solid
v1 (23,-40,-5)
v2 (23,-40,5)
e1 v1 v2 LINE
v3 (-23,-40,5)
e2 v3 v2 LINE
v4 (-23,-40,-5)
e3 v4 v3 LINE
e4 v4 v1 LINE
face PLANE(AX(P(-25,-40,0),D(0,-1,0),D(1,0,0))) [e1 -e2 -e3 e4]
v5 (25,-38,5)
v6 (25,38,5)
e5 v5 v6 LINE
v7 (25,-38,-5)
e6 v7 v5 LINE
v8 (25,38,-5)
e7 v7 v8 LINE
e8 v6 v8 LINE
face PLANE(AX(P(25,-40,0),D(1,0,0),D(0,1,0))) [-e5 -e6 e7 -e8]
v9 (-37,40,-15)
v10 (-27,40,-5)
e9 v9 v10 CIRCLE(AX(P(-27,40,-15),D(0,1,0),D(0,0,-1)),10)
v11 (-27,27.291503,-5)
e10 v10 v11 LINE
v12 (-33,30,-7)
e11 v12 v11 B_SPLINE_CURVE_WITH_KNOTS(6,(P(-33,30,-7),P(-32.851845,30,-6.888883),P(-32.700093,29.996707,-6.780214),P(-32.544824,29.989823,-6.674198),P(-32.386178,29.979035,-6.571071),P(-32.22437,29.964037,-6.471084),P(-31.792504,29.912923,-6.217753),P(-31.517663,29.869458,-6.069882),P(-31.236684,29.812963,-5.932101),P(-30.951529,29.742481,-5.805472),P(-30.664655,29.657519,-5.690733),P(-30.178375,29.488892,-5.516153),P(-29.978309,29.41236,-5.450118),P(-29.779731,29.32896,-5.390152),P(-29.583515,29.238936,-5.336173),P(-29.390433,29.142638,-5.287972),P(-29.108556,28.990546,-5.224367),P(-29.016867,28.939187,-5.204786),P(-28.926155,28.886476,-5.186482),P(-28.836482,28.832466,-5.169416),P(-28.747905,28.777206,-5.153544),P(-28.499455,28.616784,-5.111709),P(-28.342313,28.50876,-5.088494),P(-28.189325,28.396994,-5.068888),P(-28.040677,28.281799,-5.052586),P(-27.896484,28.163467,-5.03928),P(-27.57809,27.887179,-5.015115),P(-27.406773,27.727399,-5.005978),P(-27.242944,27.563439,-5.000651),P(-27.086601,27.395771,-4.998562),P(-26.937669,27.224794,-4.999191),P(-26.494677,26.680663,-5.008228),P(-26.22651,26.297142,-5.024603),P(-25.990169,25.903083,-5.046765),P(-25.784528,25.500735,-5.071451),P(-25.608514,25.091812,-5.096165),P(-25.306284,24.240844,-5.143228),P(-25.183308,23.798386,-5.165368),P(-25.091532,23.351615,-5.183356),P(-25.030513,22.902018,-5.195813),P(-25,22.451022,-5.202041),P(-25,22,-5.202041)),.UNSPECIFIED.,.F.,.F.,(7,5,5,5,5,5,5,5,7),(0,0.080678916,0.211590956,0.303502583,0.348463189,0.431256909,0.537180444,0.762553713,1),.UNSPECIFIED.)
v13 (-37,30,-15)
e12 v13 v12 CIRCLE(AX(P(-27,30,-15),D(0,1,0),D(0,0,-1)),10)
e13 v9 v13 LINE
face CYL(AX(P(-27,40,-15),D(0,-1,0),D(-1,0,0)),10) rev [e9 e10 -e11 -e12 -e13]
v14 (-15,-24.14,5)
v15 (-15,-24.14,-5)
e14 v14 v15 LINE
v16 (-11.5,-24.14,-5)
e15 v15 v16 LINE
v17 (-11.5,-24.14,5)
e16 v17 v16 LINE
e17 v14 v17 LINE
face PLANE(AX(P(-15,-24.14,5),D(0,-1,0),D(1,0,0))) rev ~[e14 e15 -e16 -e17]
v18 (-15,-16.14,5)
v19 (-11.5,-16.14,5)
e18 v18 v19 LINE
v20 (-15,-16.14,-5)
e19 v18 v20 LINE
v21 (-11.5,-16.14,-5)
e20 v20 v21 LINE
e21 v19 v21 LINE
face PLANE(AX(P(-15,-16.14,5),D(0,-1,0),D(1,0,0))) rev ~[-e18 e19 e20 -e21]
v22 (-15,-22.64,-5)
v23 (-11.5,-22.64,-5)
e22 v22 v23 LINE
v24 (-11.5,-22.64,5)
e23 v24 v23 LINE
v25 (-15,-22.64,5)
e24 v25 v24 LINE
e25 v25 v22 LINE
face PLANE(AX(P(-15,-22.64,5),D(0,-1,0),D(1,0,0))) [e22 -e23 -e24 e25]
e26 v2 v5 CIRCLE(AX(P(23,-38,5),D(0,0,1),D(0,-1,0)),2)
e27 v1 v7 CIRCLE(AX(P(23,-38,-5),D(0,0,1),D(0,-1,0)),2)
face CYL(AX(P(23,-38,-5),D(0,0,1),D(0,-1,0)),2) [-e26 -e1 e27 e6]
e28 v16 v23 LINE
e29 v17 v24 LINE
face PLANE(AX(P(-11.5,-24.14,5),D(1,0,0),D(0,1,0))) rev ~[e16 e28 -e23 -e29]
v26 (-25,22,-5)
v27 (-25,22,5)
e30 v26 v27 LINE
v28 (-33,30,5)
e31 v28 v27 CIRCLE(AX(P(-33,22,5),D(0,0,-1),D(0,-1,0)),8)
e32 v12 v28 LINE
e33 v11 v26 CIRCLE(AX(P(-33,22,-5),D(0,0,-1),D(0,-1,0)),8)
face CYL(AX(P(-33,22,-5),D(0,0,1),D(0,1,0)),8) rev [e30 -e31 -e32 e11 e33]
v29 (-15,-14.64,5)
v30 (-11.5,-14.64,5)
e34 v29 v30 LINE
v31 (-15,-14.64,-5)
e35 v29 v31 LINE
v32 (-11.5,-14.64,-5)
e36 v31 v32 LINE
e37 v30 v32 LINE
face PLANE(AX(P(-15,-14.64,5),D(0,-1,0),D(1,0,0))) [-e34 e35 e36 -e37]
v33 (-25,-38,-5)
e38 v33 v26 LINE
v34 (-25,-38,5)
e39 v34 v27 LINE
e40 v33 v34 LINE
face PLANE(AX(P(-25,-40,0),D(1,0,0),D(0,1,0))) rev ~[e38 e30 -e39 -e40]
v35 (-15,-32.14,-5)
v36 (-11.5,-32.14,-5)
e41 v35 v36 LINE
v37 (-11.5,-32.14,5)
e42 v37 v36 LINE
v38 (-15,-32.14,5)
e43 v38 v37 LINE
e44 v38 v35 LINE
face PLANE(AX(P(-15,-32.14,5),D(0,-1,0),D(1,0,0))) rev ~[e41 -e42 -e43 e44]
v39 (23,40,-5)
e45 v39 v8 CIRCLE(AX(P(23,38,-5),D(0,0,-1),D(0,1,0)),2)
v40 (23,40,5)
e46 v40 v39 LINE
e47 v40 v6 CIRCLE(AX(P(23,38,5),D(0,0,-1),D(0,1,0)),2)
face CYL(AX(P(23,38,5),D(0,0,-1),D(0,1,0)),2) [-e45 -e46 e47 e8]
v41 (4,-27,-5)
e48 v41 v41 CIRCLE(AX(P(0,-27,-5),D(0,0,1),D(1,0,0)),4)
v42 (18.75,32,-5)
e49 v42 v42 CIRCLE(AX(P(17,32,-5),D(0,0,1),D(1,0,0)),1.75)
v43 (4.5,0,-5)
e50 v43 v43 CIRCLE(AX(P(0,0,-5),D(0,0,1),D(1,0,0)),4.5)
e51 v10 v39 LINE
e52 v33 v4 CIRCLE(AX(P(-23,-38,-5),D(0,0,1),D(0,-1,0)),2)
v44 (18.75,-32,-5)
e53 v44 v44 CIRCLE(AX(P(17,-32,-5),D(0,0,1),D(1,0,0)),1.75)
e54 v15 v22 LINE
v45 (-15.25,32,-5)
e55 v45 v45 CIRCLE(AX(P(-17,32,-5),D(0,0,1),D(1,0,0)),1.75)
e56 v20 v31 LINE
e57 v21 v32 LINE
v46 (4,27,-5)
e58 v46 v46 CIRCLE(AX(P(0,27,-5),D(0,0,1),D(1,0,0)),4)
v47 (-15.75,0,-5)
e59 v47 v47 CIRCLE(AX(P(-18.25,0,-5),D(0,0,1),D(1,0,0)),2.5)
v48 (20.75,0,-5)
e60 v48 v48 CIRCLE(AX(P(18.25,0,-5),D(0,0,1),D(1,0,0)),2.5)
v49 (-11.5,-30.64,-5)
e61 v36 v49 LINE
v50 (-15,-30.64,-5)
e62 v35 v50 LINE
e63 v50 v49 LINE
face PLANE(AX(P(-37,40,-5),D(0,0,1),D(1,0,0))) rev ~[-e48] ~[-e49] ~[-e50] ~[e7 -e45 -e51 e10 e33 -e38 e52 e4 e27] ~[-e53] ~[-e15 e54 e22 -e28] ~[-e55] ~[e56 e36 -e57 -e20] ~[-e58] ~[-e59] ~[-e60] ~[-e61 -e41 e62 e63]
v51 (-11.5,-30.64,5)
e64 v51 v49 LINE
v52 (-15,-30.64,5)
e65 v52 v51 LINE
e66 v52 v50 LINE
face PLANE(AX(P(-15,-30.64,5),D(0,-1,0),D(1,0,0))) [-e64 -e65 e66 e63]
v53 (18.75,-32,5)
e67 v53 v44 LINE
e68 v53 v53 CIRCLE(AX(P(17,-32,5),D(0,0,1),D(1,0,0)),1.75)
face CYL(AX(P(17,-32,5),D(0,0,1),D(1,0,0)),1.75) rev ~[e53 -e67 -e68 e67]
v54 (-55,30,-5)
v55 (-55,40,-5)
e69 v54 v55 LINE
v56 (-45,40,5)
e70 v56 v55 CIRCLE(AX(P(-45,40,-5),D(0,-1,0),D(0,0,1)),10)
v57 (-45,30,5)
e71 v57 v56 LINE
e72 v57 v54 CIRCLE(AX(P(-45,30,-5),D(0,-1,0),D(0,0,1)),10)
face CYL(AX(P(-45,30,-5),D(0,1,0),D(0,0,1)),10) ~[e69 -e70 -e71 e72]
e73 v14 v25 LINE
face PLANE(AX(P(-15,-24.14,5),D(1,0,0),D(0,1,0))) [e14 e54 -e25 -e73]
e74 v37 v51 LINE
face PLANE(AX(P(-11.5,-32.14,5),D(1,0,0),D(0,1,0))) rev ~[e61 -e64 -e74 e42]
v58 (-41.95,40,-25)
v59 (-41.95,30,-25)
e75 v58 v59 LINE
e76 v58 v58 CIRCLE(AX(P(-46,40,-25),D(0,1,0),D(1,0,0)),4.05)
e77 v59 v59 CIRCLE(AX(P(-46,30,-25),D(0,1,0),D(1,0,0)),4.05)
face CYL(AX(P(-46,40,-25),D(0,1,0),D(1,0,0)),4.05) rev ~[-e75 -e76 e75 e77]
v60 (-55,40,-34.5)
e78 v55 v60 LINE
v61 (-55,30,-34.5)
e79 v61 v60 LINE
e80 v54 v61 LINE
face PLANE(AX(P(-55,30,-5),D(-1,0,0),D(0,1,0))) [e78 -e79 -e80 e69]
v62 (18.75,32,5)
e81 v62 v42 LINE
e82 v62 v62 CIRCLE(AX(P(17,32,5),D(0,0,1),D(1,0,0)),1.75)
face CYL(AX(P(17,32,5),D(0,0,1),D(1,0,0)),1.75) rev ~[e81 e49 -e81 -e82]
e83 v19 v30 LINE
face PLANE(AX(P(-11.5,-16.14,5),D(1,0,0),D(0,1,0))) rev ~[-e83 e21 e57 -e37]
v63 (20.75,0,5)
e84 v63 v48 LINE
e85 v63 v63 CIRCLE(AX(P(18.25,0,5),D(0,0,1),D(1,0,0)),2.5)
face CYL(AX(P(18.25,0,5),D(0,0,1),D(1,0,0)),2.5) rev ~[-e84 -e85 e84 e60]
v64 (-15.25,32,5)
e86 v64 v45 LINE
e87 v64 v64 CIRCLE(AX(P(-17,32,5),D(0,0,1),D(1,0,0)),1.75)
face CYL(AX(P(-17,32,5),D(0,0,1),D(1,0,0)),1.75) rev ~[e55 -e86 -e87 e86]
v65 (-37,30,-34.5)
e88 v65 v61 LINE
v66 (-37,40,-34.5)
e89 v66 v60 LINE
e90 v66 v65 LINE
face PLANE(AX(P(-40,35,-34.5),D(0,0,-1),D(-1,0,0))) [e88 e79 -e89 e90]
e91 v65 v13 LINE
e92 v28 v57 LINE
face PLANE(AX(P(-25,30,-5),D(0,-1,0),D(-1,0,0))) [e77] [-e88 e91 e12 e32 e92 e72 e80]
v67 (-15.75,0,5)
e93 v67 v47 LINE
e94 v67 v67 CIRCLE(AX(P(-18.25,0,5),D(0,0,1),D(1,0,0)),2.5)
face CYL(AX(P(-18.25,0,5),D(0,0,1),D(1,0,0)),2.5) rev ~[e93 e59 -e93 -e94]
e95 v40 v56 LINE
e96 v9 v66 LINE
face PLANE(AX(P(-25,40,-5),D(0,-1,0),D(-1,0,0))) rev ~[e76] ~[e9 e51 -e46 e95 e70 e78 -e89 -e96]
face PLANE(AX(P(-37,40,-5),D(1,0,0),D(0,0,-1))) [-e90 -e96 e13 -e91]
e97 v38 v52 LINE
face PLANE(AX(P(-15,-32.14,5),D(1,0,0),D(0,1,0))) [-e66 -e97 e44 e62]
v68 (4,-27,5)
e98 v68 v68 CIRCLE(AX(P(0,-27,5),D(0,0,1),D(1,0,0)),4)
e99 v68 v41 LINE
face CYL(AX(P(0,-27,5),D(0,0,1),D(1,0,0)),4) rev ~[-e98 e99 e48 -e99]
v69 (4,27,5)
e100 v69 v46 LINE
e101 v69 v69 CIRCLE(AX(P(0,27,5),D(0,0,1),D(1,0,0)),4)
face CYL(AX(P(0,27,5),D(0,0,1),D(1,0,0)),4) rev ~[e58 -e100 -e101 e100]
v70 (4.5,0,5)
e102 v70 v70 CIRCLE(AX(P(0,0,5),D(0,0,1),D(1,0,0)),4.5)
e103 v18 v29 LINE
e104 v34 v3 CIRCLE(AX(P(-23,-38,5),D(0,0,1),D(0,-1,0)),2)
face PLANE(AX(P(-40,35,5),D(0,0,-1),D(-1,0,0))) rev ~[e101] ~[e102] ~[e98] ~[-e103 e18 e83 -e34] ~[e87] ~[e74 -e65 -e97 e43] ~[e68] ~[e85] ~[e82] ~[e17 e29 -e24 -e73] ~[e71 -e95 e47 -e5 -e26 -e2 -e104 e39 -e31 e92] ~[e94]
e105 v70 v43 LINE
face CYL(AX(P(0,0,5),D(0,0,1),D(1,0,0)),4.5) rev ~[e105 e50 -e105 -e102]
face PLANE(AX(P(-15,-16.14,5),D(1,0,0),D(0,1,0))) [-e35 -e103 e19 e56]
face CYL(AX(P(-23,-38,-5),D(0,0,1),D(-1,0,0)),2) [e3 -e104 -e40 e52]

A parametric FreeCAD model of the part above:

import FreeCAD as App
import Part
import Sketcher

V = App.Vector
Q = App.Units.Quantity


def edges_at(feature, points):
    """Names of the edges that pass closest to the given points."""
    edges = feature.Shape.Edges
    near = lambda p: min(range(len(edges)), key=lambda i: edges[i].distToShape(Part.Vertex(*p))[0])
    return sorted({f"Edge{near(p) + 1}" for p in points})


def add_polygon(sketch, points):
    """Adds a closed chain of lines whose ends are joined by coincident constraints."""
    first, n = sketch.GeometryCount, len(points)
    for a, b in zip(points, points[1:] + points[:1]):
        sketch.addGeometry(Part.LineSegment(App.Vector(*a, 0), App.Vector(*b, 0)), False)
    for i in range(n):
        sketch.addConstraint(Sketcher.Constraint("Coincident", first + i, 2, first + (i + 1) % n, 1))

doc = App.newDocument("Part")
body = doc.addObject("PartDesign::Body", "Body")

sketch1 = body.newObject("Sketcher::SketchObject", "Sketch")
sketch1.AttachmentSupport = (doc.getObject("XY_Plane"), [""])
sketch1.MapMode = "FlatFace"
add_polygon(sketch1, [(-25, 40), (-25, -40), (25, -40), (25, 40)])
sketch1.addConstraint(Sketcher.Constraint("Vertical", 0))
sketch1.addConstraint(Sketcher.Constraint("Horizontal", 1))
sketch1.addConstraint(Sketcher.Constraint("Vertical", 2))
sketch1.addConstraint(Sketcher.Constraint("Horizontal", 3))
sketch1.addConstraint(Sketcher.Constraint("Symmetric", 0, 2, 2, 2, -1, 1))
sketch1.addConstraint(Sketcher.Constraint("DistanceX", 1, 1, 1, 2, Q("50 mm")))
sketch1.addConstraint(Sketcher.Constraint("DistanceY", 0, 2, 0, 1, Q("80 mm")))
pad1 = body.newObject("PartDesign::Pad", "Pad")
pad1.Profile = sketch1
pad1.Length = 10
pad1.Midplane = True

sketch2 = body.newObject("Sketcher::SketchObject", "Sketch001")
sketch2.AttachmentSupport = (doc.getObject("XY_Plane"), [""])
sketch2.MapMode = "FlatFace"
sketch2.AttachmentOffset = App.Placement(V(0, 0, 5), App.Rotation())
sketch2.addGeometry(Part.Circle(V(0, 0, 0), V(0, 0, 1), 4.5), False)
sketch2.addGeometry(Part.Circle(V(0, 27, 0), V(0, 0, 1), 4), False)
sketch2.addGeometry(Part.Circle(V(0, -27, 0), V(0, 0, 1), 4), False)
sketch2.addGeometry(Part.Circle(V(18.25, 0, 0), V(0, 0, 1), 2.5), False)
sketch2.addGeometry(Part.Circle(V(-18.25, 0, 0), V(0, 0, 1), 2.5), False)
sketch2.addConstraint(Sketcher.Constraint("Coincident", 0, 3, -1, 1))
sketch2.addConstraint(Sketcher.Constraint("Equal", 1, 2))
sketch2.addConstraint(Sketcher.Constraint("Equal", 3, 4))
sketch2.addConstraint(Sketcher.Constraint("Symmetric", 1, 3, 2, 3, -1, 1))
sketch2.addConstraint(Sketcher.Constraint("Symmetric", 3, 3, 4, 3, -1, 1))
sketch2.addConstraint(Sketcher.Constraint("PointOnObject", 1, 3, -2))
sketch2.addConstraint(Sketcher.Constraint("PointOnObject", 3, 3, -1))
sketch2.addConstraint(Sketcher.Constraint("Diameter", 0, Q("9 mm")))
sketch2.addConstraint(Sketcher.Constraint("Diameter", 1, Q("8 mm")))
sketch2.addConstraint(Sketcher.Constraint("Diameter", 3, Q("5 mm")))
sketch2.addConstraint(Sketcher.Constraint("DistanceY", -1, 1, 1, 3, Q("27 mm")))
sketch2.addConstraint(Sketcher.Constraint("DistanceX", 4, 3, 3, 3, Q("36.5 mm")))
pocket1 = body.newObject("PartDesign::Pocket", "Pocket")
pocket1.Profile = sketch2
pocket1.Length = 10

sketch3 = body.newObject("Sketcher::SketchObject", "Sketch002")
sketch3.AttachmentSupport = (doc.getObject("XY_Plane"), [""])
sketch3.MapMode = "FlatFace"
sketch3.AttachmentOffset = App.Placement(V(0, 0, 5), App.Rotation())
add_polygon(sketch3, [(-15, -30.64), (-15, -32.14), (-11.5, -32.14), (-11.5, -30.64)])
add_polygon(sketch3, [(-15, -22.64), (-15, -24.14), (-11.5, -24.14), (-11.5, -22.64)])
add_polygon(sketch3, [(-15, -14.64), (-15, -16.14), (-11.5, -16.14), (-11.5, -14.64)])
sketch3.addConstraint(Sketcher.Constraint("Vertical", 0))
sketch3.addConstraint(Sketcher.Constraint("Horizontal", 1))
sketch3.addConstraint(Sketcher.Constraint("Vertical", 2))
sketch3.addConstraint(Sketcher.Constraint("Horizontal", 3))
sketch3.addConstraint(Sketcher.Constraint("Vertical", 4))
sketch3.addConstraint(Sketcher.Constraint("Horizontal", 5))
sketch3.addConstraint(Sketcher.Constraint("Vertical", 6))
sketch3.addConstraint(Sketcher.Constraint("Horizontal", 7))
sketch3.addConstraint(Sketcher.Constraint("Vertical", 8))
sketch3.addConstraint(Sketcher.Constraint("Horizontal", 9))
sketch3.addConstraint(Sketcher.Constraint("Vertical", 10))
sketch3.addConstraint(Sketcher.Constraint("Horizontal", 11))
sketch3.addConstraint(Sketcher.Constraint("Vertical", 3, 2, 4, 2))
sketch3.addConstraint(Sketcher.Constraint("Vertical", 2, 2, 5, 2))
sketch3.addConstraint(Sketcher.Constraint("Vertical", 7, 2, 8, 2))
sketch3.addConstraint(Sketcher.Constraint("Vertical", 6, 2, 9, 2))
sketch3.addConstraint(Sketcher.Constraint("Equal", 2, 4))
sketch3.addConstraint(Sketcher.Constraint("Equal", 6, 8))
sketch3.addConstraint(Sketcher.Constraint("DistanceX", 1, 1, 1, 2, Q("3.5 mm")))
sketch3.addConstraint(Sketcher.Constraint("DistanceY", 0, 2, 0, 1, Q("1.5 mm")))
sketch3.addConstraint(Sketcher.Constraint("DistanceX", 0, 2, -1, 1, Q("15 mm")))
sketch3.addConstraint(Sketcher.Constraint("DistanceY", 0, 2, 4, 2, Q("8 mm")))
sketch3.addConstraint(Sketcher.Constraint("DistanceY", 4, 2, 8, 2, Q("8 mm")))
sketch3.addConstraint(Sketcher.Constraint("DistanceY", 0, 2, -1, 1, Q("32.14 mm")))
pocket2 = body.newObject("PartDesign::Pocket", "Pocket001")
pocket2.Profile = sketch3
pocket2.Length = 22

sketch4 = body.newObject("Sketcher::SketchObject", "Sketch003")
sketch4.AttachmentSupport = (doc.getObject("XY_Plane"), [""])
sketch4.MapMode = "FlatFace"
sketch4.AttachmentOffset = App.Placement(V(0, 0, 5), App.Rotation())
sketch4.addGeometry(Part.Circle(V(-17, 32, 0), V(0, 0, 1), 1.75), False)
sketch4.addGeometry(Part.Circle(V(17, 32, 0), V(0, 0, 1), 1.75), False)
sketch4.addGeometry(Part.Circle(V(17, -32, 0), V(0, 0, 1), 1.75), False)
sketch4.addConstraint(Sketcher.Constraint("Equal", 0, 1))
sketch4.addConstraint(Sketcher.Constraint("Equal", 1, 2))
sketch4.addConstraint(Sketcher.Constraint("Symmetric", 0, 3, 2, 3, -1, 1))
sketch4.addConstraint(Sketcher.Constraint("Symmetric", 0, 3, 1, 3, -2))
sketch4.addConstraint(Sketcher.Constraint("Diameter", 0, Q("3.5 mm")))
sketch4.addConstraint(Sketcher.Constraint("DistanceX", 0, 3, -1, 1, Q("17 mm")))
sketch4.addConstraint(Sketcher.Constraint("DistanceY", -1, 1, 0, 3, Q("32 mm")))
pocket3 = body.newObject("PartDesign::Pocket", "Pocket002")
pocket3.Profile = sketch4
pocket3.Length = 10
doc.recompute()

fillet = body.newObject("PartDesign::Fillet", "Fillet")
fillet.Base = (pocket3, edges_at(pocket3, [(25, -40, 0), (-25, -40, 0), (25, 40, 0)]))
fillet.Radius = 2

sketch5 = body.newObject("Sketcher::SketchObject", "Sketch004")
sketch5.AttachmentSupport = (doc.getObject("XY_Plane"), [""])
sketch5.MapMode = "FlatFace"
sketch5.AttachmentOffset = App.Placement(V(0, 0, -5), App.Rotation())
add_polygon(sketch5, [(-25, 40), (-25, 30), (-55, 30), (-55, 40)])
sketch5.addConstraint(Sketcher.Constraint("Vertical", 0))
sketch5.addConstraint(Sketcher.Constraint("Horizontal", 1))
sketch5.addConstraint(Sketcher.Constraint("Vertical", 2))
sketch5.addConstraint(Sketcher.Constraint("Horizontal", 3))
sketch5.addConstraint(Sketcher.Constraint("DistanceX", 1, 2, 1, 1, Q("30 mm")))
sketch5.addConstraint(Sketcher.Constraint("DistanceY", 0, 2, 0, 1, Q("10 mm")))
sketch5.addConstraint(Sketcher.Constraint("DistanceX", 0, 2, -1, 1, Q("25 mm")))
sketch5.addConstraint(Sketcher.Constraint("DistanceY", -1, 1, 0, 2, Q("30 mm")))
pad2 = body.newObject("PartDesign::Pad", "Pad001")
pad2.Profile = sketch5
pad2.Type = "TwoLengths"
pad2.Length = 29.5
pad2.Length2 = 10
pad2.Reversed = True

sketch6 = body.newObject("Sketcher::SketchObject", "Sketch005")
sketch6.AttachmentSupport = (doc.getObject("XZ_Plane"), [""])
sketch6.MapMode = "FlatFace"
sketch6.AttachmentOffset = App.Placement(V(0, 0, -40), App.Rotation())
sketch6.addGeometry(Part.Circle(V(-46, -25, 0), V(0, 0, 1), 4.05), False)
sketch6.addConstraint(Sketcher.Constraint("Diameter", 0, Q("8.1 mm")))
sketch6.addConstraint(Sketcher.Constraint("DistanceX", 0, 3, -1, 1, Q("46 mm")))
sketch6.addConstraint(Sketcher.Constraint("DistanceY", 0, 3, -1, 1, Q("25 mm")))
pocket4 = body.newObject("PartDesign::Pocket", "Pocket003")
pocket4.Profile = sketch6
pocket4.Length = 50
pocket4.Reversed = True

sketch7 = body.newObject("Sketcher::SketchObject", "Sketch006")
sketch7.AttachmentSupport = (doc.getObject("XZ_Plane"), [""])
sketch7.MapMode = "FlatFace"
sketch7.AttachmentOffset = App.Placement(V(0, 0, -40), App.Rotation())
add_polygon(sketch7, [(-37, -34.5), (-37, -5), (-25, -5), (-25, -34.5)])
sketch7.addConstraint(Sketcher.Constraint("Vertical", 0))
sketch7.addConstraint(Sketcher.Constraint("Horizontal", 1))
sketch7.addConstraint(Sketcher.Constraint("Vertical", 2))
sketch7.addConstraint(Sketcher.Constraint("Horizontal", 3))
sketch7.addConstraint(Sketcher.Constraint("DistanceX", 1, 1, 1, 2, Q("12 mm")))
sketch7.addConstraint(Sketcher.Constraint("DistanceY", 0, 1, 0, 2, Q("29.5 mm")))
sketch7.addConstraint(Sketcher.Constraint("DistanceX", 0, 2, -1, 1, Q("37 mm")))
sketch7.addConstraint(Sketcher.Constraint("DistanceY", 0, 2, -1, 1, Q("5 mm")))
pocket5 = body.newObject("PartDesign::Pocket", "Pocket004")
pocket5.Profile = sketch7
pocket5.Length = 50
pocket5.Reversed = True
doc.recompute()

fillet2 = body.newObject("PartDesign::Fillet", "Fillet001")
fillet2.Base = (pocket5, edges_at(pocket5, [(-55, 35, 5), (-37, 35, -5)]))
fillet2.Radius = 10
doc.recompute()

fillet3 = body.newObject("PartDesign::Fillet", "Fillet002")
fillet3.Base = (fillet2, edges_at(fillet2, [(-25, 30, 0)]))
fillet3.Radius = 8

doc.recompute()
